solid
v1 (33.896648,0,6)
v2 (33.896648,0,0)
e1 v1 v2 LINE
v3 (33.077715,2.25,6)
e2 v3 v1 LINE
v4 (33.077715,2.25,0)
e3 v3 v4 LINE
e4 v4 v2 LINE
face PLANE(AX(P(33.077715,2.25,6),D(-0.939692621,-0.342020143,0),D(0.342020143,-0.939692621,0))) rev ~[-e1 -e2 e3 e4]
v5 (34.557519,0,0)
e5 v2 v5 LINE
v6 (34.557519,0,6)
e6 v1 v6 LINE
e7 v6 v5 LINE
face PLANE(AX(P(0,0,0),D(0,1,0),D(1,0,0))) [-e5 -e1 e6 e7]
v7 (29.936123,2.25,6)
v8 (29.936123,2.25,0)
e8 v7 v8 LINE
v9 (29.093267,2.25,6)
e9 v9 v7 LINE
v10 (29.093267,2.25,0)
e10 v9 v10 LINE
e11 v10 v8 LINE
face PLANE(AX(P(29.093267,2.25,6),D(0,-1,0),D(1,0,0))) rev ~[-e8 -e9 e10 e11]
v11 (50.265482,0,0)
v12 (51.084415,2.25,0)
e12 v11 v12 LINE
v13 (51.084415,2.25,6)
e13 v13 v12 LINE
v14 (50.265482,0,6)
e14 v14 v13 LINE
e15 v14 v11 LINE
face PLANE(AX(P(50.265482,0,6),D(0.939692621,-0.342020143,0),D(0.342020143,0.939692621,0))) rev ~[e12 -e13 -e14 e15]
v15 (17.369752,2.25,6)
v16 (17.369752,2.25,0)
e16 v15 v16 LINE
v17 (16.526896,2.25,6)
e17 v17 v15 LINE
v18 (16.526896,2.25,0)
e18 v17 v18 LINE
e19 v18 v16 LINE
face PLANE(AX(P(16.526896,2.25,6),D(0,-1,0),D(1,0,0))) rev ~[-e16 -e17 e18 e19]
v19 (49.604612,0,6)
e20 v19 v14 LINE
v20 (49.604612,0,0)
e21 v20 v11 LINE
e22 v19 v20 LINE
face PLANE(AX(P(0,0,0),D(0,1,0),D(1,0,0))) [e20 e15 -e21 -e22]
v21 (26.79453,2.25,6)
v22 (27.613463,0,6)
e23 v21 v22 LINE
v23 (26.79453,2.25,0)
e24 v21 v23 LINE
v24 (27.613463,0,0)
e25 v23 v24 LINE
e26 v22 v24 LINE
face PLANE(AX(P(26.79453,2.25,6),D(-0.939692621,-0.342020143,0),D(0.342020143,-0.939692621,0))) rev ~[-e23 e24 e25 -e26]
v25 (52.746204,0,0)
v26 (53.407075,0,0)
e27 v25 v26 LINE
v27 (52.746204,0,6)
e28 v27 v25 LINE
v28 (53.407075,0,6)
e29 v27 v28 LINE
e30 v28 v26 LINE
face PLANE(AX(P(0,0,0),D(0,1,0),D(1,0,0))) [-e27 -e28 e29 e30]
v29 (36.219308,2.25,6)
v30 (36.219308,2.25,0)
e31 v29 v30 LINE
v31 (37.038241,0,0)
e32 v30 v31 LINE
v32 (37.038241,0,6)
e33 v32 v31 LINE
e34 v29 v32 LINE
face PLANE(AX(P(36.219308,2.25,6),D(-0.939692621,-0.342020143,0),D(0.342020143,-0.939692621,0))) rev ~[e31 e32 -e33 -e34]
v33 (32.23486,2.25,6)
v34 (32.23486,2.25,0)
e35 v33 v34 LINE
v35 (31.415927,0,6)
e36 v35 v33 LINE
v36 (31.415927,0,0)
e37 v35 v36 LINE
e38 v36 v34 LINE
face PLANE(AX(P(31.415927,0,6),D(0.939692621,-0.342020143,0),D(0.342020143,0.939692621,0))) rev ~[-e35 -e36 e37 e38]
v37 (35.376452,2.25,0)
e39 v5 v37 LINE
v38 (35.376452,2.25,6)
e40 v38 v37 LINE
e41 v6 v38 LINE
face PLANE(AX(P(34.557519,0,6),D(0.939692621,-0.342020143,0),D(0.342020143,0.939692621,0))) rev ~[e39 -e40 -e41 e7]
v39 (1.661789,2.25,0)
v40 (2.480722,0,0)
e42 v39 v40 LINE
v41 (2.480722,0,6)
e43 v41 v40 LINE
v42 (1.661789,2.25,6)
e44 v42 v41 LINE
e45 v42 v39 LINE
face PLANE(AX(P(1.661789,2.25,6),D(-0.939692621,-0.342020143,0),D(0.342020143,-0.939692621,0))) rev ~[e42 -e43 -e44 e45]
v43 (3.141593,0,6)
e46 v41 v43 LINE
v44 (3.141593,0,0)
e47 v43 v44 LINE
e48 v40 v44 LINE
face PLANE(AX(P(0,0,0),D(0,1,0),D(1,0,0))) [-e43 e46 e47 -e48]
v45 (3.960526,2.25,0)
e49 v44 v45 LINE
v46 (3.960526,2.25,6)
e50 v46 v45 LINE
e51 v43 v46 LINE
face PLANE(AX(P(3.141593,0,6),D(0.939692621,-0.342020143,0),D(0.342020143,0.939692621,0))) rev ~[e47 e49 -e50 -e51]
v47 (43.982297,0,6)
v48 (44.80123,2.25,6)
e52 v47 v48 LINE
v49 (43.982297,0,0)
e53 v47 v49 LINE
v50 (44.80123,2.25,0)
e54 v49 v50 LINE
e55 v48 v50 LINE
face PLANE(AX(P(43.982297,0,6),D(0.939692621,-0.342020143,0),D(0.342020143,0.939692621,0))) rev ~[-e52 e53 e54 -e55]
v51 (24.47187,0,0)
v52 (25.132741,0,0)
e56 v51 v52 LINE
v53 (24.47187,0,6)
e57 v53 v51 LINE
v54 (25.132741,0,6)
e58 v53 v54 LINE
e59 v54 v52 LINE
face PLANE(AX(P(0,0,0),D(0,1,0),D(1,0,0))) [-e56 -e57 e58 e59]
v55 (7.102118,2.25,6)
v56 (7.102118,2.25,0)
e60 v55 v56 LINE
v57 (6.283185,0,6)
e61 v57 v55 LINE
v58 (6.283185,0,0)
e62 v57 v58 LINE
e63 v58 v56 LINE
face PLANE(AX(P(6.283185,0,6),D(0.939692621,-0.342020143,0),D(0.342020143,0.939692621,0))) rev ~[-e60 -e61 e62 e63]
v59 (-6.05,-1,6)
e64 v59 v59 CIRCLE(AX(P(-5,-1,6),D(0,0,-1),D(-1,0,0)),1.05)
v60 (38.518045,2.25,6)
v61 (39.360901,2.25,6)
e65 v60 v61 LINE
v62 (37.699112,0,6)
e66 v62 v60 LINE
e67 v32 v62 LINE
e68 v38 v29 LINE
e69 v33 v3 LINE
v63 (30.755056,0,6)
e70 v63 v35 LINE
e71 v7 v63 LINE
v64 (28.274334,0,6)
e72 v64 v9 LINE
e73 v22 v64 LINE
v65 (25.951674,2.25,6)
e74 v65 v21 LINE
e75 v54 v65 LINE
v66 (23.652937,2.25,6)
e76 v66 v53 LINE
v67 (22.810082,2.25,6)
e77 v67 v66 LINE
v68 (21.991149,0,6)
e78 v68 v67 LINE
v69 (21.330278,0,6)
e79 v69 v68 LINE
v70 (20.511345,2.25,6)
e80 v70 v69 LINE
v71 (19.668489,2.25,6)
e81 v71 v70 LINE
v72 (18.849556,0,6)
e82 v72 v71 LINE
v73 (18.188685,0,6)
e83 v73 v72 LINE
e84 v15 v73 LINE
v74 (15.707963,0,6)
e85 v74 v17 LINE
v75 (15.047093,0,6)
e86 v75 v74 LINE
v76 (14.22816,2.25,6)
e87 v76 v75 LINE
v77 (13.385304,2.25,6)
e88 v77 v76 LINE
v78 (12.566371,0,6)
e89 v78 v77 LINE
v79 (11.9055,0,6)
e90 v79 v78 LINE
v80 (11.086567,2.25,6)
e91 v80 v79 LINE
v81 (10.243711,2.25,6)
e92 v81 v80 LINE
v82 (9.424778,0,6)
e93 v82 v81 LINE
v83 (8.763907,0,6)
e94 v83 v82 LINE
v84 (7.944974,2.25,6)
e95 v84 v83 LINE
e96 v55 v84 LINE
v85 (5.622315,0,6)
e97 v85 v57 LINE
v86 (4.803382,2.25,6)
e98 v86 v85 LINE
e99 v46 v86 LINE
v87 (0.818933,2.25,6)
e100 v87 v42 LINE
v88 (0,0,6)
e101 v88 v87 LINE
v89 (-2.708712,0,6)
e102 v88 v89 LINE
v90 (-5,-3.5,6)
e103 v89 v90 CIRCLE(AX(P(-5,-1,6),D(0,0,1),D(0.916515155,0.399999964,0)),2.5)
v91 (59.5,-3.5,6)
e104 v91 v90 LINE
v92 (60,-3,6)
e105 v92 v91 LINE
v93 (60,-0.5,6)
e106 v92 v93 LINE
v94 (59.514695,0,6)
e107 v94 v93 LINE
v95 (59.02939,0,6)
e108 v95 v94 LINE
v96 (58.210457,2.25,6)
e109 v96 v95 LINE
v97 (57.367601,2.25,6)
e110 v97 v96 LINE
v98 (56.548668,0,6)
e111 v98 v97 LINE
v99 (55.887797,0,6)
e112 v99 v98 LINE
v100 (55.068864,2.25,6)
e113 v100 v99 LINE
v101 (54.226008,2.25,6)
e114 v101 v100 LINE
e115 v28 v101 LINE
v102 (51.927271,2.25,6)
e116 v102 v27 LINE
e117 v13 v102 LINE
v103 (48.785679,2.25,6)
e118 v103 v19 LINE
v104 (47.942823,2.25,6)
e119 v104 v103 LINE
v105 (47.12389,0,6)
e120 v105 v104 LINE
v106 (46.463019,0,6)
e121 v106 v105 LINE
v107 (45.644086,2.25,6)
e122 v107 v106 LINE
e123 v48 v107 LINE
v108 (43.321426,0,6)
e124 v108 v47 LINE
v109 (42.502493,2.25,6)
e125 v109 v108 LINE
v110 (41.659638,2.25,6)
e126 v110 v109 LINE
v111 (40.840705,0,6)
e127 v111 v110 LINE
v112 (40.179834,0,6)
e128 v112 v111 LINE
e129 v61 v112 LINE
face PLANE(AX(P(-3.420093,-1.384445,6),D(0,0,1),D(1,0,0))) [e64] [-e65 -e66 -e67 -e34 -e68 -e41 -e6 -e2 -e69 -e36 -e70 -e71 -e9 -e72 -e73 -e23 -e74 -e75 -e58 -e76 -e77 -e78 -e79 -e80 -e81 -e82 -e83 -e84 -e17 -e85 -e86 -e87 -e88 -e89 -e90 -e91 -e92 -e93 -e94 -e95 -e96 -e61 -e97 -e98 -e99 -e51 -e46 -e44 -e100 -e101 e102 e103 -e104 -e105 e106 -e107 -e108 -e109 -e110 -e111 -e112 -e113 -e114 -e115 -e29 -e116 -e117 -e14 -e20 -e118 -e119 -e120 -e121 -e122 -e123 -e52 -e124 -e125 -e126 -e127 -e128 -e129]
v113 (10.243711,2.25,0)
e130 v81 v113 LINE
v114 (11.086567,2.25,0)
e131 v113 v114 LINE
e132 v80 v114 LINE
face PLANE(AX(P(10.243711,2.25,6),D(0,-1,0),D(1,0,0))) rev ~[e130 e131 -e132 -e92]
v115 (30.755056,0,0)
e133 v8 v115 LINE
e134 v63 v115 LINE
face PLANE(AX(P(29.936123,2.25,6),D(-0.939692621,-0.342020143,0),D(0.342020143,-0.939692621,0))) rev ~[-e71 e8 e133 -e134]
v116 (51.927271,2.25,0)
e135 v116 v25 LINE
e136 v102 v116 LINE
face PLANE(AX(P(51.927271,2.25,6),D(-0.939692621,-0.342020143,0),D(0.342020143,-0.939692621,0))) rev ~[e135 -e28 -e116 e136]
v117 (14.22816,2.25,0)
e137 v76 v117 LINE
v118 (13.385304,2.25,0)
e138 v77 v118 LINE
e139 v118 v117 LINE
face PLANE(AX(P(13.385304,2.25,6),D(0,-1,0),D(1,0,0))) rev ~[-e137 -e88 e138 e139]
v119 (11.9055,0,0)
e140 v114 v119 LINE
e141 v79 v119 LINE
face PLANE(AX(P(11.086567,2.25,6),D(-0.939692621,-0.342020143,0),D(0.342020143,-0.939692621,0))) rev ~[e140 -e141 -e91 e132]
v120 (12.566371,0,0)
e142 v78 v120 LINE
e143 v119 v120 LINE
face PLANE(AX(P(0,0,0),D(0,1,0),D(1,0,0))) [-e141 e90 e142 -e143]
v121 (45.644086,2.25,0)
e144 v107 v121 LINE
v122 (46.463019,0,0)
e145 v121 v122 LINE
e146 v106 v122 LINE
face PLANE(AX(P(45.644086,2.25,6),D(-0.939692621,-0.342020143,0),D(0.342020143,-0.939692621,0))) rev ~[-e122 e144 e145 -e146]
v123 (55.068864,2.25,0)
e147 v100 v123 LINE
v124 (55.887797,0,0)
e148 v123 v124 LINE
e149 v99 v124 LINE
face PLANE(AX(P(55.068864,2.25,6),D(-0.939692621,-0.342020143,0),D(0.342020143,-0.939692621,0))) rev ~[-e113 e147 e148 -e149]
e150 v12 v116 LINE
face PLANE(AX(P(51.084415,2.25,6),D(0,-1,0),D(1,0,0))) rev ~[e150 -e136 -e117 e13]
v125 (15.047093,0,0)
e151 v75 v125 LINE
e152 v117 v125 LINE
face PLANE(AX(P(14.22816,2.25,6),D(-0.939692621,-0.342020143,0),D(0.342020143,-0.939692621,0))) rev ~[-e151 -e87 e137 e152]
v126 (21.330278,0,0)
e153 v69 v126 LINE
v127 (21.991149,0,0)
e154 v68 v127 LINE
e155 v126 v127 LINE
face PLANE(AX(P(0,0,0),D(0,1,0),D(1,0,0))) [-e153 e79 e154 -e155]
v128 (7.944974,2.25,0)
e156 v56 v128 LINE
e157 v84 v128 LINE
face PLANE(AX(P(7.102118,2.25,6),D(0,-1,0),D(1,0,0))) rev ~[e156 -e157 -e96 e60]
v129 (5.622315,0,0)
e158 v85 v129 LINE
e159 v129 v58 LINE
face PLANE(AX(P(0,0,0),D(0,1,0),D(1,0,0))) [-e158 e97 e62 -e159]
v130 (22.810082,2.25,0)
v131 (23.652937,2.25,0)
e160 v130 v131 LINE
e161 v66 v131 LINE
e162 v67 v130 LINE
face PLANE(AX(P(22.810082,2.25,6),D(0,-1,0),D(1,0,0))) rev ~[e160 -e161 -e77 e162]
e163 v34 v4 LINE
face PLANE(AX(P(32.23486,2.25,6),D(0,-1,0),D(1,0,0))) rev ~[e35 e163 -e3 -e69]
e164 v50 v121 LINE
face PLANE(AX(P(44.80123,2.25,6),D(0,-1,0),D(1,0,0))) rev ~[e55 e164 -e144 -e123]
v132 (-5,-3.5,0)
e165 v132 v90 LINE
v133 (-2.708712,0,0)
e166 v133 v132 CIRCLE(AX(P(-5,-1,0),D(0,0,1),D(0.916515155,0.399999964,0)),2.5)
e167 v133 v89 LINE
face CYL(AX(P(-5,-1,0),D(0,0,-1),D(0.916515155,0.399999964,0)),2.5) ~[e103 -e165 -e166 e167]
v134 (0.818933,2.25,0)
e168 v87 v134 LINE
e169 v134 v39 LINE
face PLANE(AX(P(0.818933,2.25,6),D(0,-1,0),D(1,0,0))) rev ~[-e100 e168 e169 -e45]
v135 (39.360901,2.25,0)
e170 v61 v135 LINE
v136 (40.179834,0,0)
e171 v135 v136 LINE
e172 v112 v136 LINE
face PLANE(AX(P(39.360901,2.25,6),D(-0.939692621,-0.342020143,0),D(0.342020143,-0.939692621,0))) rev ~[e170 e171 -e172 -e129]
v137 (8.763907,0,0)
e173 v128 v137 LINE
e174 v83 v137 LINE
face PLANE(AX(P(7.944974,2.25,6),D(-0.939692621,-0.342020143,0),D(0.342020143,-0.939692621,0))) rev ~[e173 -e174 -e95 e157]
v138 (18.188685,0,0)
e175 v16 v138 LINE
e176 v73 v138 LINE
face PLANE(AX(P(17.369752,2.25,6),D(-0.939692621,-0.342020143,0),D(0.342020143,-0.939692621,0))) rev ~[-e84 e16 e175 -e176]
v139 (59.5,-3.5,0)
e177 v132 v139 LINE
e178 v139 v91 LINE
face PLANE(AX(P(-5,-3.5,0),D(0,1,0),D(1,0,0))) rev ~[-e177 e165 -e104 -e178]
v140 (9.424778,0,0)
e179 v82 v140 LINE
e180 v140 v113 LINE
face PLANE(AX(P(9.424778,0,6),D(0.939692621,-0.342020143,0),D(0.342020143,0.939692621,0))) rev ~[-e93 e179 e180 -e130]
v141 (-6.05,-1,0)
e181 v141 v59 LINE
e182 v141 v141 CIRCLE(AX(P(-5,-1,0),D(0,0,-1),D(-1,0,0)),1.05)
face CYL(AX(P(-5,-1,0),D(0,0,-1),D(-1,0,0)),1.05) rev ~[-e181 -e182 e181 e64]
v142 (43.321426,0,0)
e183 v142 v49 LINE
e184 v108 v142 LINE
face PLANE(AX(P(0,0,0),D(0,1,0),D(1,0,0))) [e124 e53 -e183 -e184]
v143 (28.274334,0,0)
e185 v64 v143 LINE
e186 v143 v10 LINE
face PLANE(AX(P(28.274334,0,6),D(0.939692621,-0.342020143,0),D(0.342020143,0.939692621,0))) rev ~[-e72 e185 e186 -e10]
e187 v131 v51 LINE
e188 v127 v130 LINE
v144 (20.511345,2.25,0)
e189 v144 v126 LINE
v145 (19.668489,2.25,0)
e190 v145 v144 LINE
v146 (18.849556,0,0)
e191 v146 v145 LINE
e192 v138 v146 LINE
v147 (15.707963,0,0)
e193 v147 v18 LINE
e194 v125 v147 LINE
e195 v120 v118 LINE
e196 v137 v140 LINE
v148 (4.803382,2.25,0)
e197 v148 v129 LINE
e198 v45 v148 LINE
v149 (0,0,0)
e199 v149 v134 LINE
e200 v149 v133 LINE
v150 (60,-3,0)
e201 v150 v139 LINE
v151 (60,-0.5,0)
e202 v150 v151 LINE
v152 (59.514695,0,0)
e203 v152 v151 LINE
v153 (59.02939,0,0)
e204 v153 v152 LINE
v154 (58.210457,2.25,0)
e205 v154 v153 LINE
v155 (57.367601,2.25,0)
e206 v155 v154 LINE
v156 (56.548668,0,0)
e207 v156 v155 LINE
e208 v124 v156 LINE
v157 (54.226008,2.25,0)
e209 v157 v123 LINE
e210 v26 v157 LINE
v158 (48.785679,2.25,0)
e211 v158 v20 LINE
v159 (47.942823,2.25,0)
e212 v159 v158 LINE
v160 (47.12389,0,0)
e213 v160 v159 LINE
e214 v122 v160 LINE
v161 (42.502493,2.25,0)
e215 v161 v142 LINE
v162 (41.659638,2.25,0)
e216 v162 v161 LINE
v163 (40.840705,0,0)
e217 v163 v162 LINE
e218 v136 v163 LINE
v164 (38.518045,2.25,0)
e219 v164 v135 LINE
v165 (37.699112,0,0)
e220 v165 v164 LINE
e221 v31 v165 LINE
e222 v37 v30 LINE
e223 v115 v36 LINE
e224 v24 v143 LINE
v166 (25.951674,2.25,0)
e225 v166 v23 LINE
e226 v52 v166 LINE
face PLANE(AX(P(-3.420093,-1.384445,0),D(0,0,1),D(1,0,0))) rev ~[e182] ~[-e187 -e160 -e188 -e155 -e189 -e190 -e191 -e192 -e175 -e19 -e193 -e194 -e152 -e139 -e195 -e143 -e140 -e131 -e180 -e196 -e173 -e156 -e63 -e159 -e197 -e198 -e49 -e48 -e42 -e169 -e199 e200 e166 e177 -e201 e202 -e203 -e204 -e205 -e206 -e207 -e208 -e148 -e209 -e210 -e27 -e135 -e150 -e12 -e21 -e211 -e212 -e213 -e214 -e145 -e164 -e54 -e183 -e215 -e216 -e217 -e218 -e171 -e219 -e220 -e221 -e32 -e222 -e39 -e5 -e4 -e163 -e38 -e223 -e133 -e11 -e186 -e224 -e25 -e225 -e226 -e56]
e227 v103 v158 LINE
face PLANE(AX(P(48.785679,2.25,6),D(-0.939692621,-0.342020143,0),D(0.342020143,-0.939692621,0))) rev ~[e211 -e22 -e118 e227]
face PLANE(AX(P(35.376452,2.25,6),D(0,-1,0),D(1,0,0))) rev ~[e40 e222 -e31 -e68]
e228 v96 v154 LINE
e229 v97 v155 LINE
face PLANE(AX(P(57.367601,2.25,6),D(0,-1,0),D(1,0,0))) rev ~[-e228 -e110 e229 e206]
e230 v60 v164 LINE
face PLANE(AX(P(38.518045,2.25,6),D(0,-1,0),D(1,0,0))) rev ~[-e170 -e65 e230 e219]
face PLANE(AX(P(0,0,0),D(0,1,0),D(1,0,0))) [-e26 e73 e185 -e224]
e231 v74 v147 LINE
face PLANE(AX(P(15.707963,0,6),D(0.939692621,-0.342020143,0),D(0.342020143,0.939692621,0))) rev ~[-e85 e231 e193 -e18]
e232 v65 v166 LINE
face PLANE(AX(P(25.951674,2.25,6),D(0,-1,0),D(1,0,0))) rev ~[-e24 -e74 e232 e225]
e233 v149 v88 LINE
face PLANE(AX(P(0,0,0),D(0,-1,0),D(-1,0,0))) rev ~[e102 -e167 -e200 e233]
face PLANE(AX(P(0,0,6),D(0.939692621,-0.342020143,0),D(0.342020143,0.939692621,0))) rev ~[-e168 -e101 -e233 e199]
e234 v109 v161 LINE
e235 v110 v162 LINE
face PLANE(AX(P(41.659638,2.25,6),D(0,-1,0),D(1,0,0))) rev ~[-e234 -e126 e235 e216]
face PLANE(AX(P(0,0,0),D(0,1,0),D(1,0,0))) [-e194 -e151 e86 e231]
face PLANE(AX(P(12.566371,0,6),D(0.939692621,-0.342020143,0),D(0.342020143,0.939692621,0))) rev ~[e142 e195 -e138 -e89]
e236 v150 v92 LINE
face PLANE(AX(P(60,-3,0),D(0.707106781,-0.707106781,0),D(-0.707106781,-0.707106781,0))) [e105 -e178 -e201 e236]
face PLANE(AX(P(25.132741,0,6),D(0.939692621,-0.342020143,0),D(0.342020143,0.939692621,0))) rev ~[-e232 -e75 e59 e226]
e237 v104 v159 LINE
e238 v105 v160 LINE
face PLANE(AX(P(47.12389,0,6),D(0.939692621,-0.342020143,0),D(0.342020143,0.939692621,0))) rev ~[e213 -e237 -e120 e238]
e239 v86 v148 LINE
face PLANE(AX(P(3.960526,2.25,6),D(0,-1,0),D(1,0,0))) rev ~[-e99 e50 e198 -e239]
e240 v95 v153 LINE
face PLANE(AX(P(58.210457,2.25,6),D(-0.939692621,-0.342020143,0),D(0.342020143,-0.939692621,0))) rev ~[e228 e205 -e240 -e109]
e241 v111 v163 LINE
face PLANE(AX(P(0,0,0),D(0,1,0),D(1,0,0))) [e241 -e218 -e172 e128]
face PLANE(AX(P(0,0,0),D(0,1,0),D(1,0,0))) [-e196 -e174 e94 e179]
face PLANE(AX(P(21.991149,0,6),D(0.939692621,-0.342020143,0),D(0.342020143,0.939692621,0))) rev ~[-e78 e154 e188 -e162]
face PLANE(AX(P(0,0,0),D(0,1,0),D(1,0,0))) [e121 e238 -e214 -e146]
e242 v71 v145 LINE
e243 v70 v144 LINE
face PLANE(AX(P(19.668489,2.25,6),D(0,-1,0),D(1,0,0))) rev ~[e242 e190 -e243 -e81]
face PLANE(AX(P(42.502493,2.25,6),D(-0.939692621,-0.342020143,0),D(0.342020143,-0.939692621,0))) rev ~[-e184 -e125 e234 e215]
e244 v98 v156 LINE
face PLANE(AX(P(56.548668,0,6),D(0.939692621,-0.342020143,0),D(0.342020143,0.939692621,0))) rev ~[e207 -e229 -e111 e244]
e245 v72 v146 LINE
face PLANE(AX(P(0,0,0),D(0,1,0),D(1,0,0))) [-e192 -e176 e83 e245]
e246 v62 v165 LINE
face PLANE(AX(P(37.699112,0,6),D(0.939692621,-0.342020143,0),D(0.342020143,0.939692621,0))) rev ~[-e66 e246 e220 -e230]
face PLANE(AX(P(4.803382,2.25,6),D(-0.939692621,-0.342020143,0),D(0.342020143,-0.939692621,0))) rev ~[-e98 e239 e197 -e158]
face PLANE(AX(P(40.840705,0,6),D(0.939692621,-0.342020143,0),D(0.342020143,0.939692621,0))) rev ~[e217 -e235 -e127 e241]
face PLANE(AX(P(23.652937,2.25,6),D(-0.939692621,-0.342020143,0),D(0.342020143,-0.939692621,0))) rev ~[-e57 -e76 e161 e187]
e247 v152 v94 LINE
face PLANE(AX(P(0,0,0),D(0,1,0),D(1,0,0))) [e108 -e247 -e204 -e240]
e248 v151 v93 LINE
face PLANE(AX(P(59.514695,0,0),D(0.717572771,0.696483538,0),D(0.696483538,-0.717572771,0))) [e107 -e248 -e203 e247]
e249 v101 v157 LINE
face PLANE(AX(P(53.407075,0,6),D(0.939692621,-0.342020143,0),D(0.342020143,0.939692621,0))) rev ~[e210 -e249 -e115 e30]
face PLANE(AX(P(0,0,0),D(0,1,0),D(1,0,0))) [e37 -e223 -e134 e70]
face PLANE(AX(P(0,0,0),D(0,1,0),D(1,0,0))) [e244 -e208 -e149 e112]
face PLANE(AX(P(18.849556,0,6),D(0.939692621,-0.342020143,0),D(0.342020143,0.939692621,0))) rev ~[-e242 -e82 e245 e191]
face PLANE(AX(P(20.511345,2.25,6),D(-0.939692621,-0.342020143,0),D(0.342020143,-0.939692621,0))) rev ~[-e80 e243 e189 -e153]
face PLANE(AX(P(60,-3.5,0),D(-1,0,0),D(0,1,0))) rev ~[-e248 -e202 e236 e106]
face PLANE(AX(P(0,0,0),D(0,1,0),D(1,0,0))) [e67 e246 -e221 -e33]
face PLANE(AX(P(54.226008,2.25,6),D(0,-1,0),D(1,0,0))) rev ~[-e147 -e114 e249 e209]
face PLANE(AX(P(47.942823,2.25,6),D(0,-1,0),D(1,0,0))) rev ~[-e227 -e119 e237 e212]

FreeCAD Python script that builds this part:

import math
import FreeCAD as App
import Part
import Sketcher

V = App.Vector
Q = App.Units.Quantity


def add_polygon(sketch, points):
    """Adds a closed chain of lines whose ends are joined by coincident constraints."""
    first, n = sketch.GeometryCount, len(points)
    for a, b in zip(points, points[1:] + points[:1]):
        sketch.addGeometry(Part.LineSegment(App.Vector(*a, 0), App.Vector(*b, 0)), False)
    for i in range(n):
        sketch.addConstraint(Sketcher.Constraint("Coincident", first + i, 2, first + (i + 1) % n, 1))

doc = App.newDocument("Part")
body = doc.addObject("PartDesign::Body", "Body")

sketch1 = body.newObject("Sketcher::SketchObject", "Sketch")
sketch1.AttachmentSupport = (doc.getObject("XY_Plane"), [""])
sketch1.MapMode = "FlatFace"
add_polygon(sketch1, [(0, 0), (0, -3.5), (60, -3.5), (60, 0)])
sketch1.addConstraint([
    Sketcher.Constraint("Vertical", 0),
    Sketcher.Constraint("Horizontal", 1),
    Sketcher.Constraint("Vertical", 2),
    Sketcher.Constraint("Horizontal", 3),
    Sketcher.Constraint("Coincident", 3, 2, -1, 1),
    Sketcher.Constraint("DistanceX", 1, 1, 1, 2, 60.0),
    Sketcher.Constraint("DistanceY", 0, 2, 0, 1, 3.5),
])
pad1 = body.newObject("PartDesign::Pad", "Pad")
pad1.Profile = sketch1
pad1.Length = 6

sketch2 = body.newObject("Sketcher::SketchObject", "Sketch001")
sketch2.AttachmentSupport = (doc.getObject("XY_Plane"), [""])
sketch2.MapMode = "FlatFace"
sketch2.AttachmentOffset = App.Placement(V(0, 0, 6), App.Rotation())
add_polygon(sketch2, [(0.8, 2.2), (0, 0), (2.5, 0), (1.7, 2.2)])
sketch2.addConstraint([
    Sketcher.Constraint("Horizontal", 1),
    Sketcher.Constraint("Horizontal", 3),
    Sketcher.Constraint("Coincident", 0, 2, -1, 1),
    Sketcher.Constraint("Equal", 0, 2),
    Sketcher.Constraint("Angle", 0, Q("-110 deg")),
    Sketcher.Constraint("DistanceY", -1, 1, 2, 2, 2.25),
    Sketcher.Constraint("DistanceX", 1, 1, 1, 2, 2.480722),
])
pad2 = body.newObject("PartDesign::Pad", "Pad001")
pad2.Profile = sketch2
pad2.Length = 6
pad2.Reversed = True
doc.recompute()

linearpattern = body.newObject("PartDesign::LinearPattern", "LinearPattern")
linearpattern.Originals = [pad2]
linearpattern.Direction = (doc.getObject("X_Axis"), [""])
linearpattern.Mode = "offset"
linearpattern.Offset = 3.141593
linearpattern.Occurrences = 19
body.Tip = linearpattern

sketch3 = body.newObject("Sketcher::SketchObject", "Sketch002")
sketch3.AttachmentSupport = (doc.getObject("XY_Plane"), [""])
sketch3.MapMode = "FlatFace"
sketch3.addGeometry([
    Part.LineSegment(V(0, -3.5, 0), V(-5, -3.5, 0)),
    Part.ArcOfCircle(Part.Circle(V(-5, -1, 0), V(0, 0, 1), 2.5), math.radians(24), math.radians(270)),
    Part.LineSegment(V(-2.7, 0, 0), V(0, 0, 0)),
    Part.LineSegment(V(0, 0, 0), V(0, -3.5, 0)),
    Part.Circle(V(-5, -1, 0), V(0, 0, 1), 1.1),
], False)
sketch3.addConstraint([
    Sketcher.Constraint("Tangent", 0, 2, 1, 2),
    Sketcher.Constraint("Coincident", 1, 1, 2, 1),
    Sketcher.Constraint("Coincident", 2, 2, 3, 1),
    Sketcher.Constraint("Coincident", 3, 2, 0, 1),
    Sketcher.Constraint("Horizontal", 0),
    Sketcher.Constraint("Horizontal", 2),
    Sketcher.Constraint("Vertical", 3),
    Sketcher.Constraint("Coincident", 2, 2, -1, 1),
    Sketcher.Constraint("Coincident", 4, 3, 1, 3),
    Sketcher.Constraint("Diameter", 4, 2.1),
    Sketcher.Constraint("Radius", 1, 2.5),
    Sketcher.Constraint("DistanceX", 0, 2, 0, 1, 5.0),
    Sketcher.Constraint("DistanceY", 3, 2, 3, 1, 3.5),
])
pad3 = body.newObject("PartDesign::Pad", "Pad002")
pad3.Profile = sketch3
pad3.Length = 6

sketch4 = body.newObject("Sketcher::SketchObject", "Sketch003")
sketch4.AttachmentSupport = (doc.getObject("XY_Plane"), [""])
sketch4.MapMode = "FlatFace"
add_polygon(sketch4, [(60, -0.5), (59.51, 0), (60, 0)])
add_polygon(sketch4, [(60, -3), (60, -3.5), (59.5, -3.5)])
sketch4.addConstraint([
    Sketcher.Constraint("Horizontal", 1),
    Sketcher.Constraint("Vertical", 2),
    Sketcher.Constraint("Vertical", 3),
    Sketcher.Constraint("Horizontal", 4),
    Sketcher.Constraint("PointOnObject", 0, 2, -1),
    Sketcher.Constraint("Vertical", 2, 2, 3, 2),
    Sketcher.Constraint("Equal", 4, 2),
    Sketcher.Constraint("Equal", 2, 3),
    Sketcher.Constraint("DistanceX", 4, 2, 4, 1, 0.5),
    Sketcher.Constraint("DistanceX", -1, 1, 1, 2, 60.0),
    Sketcher.Constraint("DistanceY", 5, 2, -1, 1, 3.0),
    Sketcher.Constraint("DistanceX", 1, 1, 1, 2, 0.485305),
])
pocket1 = body.newObject("PartDesign::Pocket", "Pocket")
pocket1.Profile = sketch4
pocket1.Length = 6
pocket1.Reversed = True

doc.recompute()
